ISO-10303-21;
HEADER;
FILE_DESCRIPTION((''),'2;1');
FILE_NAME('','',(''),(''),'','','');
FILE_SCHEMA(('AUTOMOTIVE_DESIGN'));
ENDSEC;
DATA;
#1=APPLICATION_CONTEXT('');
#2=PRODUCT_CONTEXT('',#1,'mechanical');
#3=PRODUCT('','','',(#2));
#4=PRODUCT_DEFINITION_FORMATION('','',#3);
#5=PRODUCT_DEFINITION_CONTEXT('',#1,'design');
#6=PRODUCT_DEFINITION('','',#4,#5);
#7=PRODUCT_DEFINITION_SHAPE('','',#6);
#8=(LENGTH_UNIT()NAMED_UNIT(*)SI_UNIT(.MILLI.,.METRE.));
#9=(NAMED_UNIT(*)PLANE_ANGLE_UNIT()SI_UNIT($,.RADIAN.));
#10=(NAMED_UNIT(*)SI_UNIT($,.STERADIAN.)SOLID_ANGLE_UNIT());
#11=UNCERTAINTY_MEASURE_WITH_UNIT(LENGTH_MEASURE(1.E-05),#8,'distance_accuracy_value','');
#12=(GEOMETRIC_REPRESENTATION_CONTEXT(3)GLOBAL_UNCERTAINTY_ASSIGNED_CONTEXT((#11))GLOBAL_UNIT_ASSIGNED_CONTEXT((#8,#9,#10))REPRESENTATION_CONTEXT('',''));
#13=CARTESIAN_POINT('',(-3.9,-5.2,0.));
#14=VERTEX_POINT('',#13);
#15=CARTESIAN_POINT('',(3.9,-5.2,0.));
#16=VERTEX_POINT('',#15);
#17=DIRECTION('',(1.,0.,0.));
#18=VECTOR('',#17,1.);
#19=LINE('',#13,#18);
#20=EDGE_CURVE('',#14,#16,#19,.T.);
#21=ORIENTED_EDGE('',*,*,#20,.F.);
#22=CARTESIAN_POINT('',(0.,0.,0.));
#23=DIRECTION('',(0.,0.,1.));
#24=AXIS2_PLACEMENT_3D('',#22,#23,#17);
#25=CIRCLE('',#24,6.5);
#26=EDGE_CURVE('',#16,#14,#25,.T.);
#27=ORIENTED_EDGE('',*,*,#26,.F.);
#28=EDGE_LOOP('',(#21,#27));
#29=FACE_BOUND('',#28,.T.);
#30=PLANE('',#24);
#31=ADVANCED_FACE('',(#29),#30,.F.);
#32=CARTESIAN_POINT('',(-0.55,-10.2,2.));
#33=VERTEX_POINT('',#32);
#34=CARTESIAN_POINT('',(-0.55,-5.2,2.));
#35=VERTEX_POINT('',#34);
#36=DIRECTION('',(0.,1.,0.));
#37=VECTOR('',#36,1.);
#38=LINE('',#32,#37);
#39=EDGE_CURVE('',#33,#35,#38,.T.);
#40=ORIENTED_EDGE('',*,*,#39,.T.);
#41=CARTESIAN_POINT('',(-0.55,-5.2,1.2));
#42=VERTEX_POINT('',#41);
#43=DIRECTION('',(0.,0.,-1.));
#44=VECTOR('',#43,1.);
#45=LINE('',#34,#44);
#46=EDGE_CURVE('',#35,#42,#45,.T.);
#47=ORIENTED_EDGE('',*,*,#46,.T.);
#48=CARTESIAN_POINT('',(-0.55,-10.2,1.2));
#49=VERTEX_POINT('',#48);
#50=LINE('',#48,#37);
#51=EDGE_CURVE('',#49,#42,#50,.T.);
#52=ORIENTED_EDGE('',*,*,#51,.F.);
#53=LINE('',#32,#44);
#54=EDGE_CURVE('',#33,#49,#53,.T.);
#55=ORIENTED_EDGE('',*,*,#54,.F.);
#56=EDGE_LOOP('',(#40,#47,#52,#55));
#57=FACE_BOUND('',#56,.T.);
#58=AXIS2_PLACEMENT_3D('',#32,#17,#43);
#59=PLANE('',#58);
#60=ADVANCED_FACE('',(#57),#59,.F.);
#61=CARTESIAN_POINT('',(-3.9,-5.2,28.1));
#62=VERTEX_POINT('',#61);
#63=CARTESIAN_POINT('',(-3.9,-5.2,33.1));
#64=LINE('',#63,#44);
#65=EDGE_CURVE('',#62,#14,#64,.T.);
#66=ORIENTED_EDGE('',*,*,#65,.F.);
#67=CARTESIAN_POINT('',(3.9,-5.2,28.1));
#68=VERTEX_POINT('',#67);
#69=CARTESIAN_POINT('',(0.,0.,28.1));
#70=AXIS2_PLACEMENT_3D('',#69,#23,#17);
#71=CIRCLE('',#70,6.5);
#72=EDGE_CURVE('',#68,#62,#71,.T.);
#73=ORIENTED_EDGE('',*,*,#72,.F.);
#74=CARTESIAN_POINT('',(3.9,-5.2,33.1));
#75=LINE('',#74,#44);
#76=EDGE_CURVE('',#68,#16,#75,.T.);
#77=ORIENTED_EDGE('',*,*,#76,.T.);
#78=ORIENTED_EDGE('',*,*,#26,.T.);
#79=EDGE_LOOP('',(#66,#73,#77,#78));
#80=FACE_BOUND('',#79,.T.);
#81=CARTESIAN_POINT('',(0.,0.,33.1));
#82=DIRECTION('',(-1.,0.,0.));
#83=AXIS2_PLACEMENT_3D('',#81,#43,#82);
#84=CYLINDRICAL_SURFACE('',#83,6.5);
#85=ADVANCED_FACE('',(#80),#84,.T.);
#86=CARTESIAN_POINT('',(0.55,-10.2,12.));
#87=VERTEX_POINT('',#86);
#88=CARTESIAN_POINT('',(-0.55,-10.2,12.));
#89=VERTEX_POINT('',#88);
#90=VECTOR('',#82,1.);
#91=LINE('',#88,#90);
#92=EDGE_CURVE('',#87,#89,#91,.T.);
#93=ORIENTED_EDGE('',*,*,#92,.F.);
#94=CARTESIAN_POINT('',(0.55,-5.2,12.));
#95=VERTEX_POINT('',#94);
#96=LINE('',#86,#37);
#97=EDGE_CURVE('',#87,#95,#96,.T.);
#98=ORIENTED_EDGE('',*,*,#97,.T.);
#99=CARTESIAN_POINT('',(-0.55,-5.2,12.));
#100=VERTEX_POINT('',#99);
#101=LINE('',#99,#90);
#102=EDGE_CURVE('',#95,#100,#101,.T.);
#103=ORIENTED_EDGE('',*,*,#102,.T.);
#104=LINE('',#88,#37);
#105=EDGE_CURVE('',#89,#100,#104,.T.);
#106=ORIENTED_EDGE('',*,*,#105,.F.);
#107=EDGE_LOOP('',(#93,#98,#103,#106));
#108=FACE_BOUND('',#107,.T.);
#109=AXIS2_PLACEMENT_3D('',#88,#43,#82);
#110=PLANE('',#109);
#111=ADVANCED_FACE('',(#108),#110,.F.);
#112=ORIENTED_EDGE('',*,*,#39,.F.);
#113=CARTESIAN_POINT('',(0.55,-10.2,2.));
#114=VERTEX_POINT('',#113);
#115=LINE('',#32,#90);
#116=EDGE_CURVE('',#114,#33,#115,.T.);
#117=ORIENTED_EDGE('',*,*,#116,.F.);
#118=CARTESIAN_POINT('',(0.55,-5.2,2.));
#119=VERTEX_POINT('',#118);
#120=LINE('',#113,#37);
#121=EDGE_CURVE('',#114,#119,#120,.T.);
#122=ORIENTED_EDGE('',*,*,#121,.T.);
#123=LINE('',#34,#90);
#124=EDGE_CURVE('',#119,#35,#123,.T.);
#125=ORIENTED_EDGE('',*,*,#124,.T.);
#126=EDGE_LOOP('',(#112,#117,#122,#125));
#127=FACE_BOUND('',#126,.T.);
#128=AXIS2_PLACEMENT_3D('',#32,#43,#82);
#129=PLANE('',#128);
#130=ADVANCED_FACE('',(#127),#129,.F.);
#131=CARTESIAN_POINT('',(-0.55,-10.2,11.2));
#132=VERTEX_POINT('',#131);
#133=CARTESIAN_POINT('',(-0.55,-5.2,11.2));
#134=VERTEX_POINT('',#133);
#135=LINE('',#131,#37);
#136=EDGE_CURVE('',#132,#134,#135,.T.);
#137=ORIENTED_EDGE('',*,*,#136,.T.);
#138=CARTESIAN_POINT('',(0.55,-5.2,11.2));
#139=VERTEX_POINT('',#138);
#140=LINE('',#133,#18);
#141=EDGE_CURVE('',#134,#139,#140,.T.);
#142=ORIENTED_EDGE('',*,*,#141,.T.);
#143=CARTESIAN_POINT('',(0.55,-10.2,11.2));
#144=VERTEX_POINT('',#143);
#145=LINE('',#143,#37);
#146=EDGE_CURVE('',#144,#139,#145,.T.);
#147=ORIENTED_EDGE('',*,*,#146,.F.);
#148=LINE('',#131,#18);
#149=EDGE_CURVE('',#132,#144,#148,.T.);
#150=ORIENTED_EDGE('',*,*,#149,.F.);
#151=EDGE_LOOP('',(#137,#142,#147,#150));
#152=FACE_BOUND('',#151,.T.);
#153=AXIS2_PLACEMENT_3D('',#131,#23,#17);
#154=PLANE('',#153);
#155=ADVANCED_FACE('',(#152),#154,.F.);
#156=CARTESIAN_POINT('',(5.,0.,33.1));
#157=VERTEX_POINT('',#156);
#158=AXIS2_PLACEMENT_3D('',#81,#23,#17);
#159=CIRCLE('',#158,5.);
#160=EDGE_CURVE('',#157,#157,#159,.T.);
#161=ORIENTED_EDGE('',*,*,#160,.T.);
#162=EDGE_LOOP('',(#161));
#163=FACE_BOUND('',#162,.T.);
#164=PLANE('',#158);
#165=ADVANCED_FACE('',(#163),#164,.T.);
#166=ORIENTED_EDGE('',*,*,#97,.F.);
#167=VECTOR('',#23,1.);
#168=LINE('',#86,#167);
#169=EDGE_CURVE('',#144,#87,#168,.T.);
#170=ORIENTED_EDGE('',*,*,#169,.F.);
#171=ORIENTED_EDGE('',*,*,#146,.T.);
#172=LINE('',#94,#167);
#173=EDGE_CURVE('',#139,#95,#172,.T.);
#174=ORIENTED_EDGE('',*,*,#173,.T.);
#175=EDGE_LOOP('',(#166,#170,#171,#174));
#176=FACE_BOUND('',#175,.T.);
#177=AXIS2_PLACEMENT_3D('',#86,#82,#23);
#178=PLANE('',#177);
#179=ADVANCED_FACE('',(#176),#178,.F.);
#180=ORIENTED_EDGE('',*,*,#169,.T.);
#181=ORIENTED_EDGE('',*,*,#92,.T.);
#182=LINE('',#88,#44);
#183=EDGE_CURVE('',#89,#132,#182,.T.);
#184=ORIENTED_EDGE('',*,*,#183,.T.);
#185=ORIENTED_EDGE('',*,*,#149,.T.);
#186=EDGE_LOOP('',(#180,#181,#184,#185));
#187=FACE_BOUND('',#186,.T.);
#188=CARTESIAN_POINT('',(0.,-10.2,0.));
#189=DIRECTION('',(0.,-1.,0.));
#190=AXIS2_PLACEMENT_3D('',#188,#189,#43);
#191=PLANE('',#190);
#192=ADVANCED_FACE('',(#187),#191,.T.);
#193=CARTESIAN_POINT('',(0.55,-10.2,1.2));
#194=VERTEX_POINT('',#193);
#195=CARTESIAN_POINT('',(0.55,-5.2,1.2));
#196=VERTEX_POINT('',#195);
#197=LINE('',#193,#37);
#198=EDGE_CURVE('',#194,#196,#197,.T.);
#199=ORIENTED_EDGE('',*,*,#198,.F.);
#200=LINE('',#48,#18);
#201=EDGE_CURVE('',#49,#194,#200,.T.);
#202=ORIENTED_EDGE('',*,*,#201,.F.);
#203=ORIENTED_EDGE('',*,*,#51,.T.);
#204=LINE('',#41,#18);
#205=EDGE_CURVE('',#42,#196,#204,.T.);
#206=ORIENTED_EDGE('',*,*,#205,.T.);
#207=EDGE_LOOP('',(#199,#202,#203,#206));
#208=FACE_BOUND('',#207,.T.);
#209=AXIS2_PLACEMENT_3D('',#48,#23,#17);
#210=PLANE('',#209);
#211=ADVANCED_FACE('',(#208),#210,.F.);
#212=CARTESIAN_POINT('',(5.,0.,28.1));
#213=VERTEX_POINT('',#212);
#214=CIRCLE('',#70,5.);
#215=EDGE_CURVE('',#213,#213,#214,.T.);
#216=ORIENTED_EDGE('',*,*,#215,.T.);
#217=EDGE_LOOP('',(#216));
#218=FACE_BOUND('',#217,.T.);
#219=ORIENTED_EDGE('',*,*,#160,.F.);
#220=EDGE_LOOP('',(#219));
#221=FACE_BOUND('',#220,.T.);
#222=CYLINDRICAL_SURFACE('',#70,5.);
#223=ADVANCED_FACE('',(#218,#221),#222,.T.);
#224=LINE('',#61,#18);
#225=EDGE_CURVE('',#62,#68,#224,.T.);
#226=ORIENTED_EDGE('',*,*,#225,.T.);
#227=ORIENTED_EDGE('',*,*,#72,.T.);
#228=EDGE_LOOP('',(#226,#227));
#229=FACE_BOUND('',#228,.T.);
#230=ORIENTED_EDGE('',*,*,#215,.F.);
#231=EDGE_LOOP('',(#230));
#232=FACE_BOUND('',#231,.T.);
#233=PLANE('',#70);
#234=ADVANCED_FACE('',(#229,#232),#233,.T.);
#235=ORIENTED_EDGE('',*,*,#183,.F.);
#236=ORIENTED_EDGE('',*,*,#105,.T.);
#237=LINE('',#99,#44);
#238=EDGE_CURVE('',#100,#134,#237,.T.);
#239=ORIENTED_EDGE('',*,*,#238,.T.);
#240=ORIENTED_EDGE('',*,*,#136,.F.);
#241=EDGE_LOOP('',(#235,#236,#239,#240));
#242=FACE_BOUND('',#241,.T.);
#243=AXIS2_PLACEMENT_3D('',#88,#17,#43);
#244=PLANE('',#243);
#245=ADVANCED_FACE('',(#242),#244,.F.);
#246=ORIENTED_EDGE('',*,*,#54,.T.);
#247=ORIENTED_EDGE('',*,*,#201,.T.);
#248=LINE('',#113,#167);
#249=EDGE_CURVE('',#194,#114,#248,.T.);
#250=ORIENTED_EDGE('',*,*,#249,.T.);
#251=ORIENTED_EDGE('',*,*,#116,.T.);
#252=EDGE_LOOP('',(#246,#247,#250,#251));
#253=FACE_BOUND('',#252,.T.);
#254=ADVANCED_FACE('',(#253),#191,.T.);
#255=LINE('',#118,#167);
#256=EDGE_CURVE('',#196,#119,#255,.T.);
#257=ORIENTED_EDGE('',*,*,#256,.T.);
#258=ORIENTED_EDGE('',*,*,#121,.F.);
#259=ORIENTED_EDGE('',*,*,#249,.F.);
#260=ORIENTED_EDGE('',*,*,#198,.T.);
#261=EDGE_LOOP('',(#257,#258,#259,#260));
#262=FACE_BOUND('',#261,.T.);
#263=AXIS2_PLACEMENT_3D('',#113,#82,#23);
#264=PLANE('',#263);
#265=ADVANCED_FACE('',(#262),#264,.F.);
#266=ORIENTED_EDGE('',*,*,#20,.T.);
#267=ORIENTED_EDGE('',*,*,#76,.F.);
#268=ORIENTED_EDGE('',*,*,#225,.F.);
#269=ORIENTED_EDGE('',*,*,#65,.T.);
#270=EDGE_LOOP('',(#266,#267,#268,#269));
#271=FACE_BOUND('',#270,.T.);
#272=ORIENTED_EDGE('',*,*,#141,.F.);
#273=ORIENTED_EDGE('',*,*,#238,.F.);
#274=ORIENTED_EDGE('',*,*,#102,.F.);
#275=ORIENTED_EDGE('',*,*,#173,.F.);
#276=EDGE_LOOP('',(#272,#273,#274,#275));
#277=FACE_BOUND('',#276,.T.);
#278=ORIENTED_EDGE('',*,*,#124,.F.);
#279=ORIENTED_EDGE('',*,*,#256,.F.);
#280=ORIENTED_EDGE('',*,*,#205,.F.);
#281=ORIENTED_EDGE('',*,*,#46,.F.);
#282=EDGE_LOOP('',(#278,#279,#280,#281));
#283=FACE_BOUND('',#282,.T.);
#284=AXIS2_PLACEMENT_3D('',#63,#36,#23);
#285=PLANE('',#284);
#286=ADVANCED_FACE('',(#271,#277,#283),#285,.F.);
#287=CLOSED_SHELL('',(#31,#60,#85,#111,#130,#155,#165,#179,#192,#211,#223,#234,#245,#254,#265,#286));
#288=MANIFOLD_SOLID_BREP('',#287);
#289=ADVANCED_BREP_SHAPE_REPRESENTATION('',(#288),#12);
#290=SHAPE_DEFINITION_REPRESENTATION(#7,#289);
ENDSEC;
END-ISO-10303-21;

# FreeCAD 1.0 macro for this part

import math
import FreeCAD as App
import Part
import Sketcher

V = App.Vector
Q = App.Units.Quantity

doc = App.newDocument("Part")
body = doc.addObject("PartDesign::Body", "Body")

sketch1 = doc.addObject("Sketcher::SketchObject", "Sketch")
body.addObject(sketch1)
sketch1.AttachmentSupport = (doc.XY_Plane, [""])
sketch1.MapMode = "FlatFace"
sketch1.addGeometry(Part.LineSegment(V(-4, -5, 0), V(4, -5, 0)), False)
sketch1.addGeometry(Part.ArcOfCircle(Part.Circle(V(0, 0, 0), V(0, 0, 1), 6), math.radians(-53), math.radians(233)), False)
sketch1.addConstraint(Sketcher.Constraint("Coincident", 0, 1, 1, 2))
sketch1.addConstraint(Sketcher.Constraint("Coincident", 1, 1, 0, 2))
sketch1.addConstraint(Sketcher.Constraint("Horizontal", 0))
sketch1.addConstraint(Sketcher.Constraint("Coincident", 1, 3, -1, 1))
sketch1.addConstraint(Sketcher.Constraint("Radius", 1, Q("6.5 mm")))
sketch1.addConstraint(Sketcher.Constraint("DistanceX", 0, 1, 0, 2, Q("7.8 mm")))
pad1 = doc.addObject("PartDesign::Pad", "Pad")
body.addObject(pad1)
pad1.Profile = sketch1
pad1.Length = 33.1

sketch2 = doc.addObject("Sketcher::SketchObject", "Sketch001")
body.addObject(sketch2)
sketch2.AttachmentSupport = (doc.XY_Plane, [""])
sketch2.MapMode = "FlatFace"
sketch2.AttachmentOffset = App.Placement(V(0, 0, 28.1), App.Rotation())
sketch2.addGeometry(Part.LineSegment(V(-4, -5, 0), V(4, -5, 0)), False)
sketch2.addGeometry(Part.ArcOfCircle(Part.Circle(V(0, 0, 0), V(0, 0, 1), 6), math.radians(-53), math.radians(233)), False)
sketch2.addGeometry(Part.Circle(V(0, 0, 0), V(0, 0, 1), 5), False)
sketch2.addConstraint(Sketcher.Constraint("Coincident", 0, 1, 1, 2))
sketch2.addConstraint(Sketcher.Constraint("Coincident", 1, 1, 0, 2))
sketch2.addConstraint(Sketcher.Constraint("Horizontal", 0))
sketch2.addConstraint(Sketcher.Constraint("Coincident", 1, 3, -1, 1))
sketch2.addConstraint(Sketcher.Constraint("Coincident", 2, 3, -1, 1))
sketch2.addConstraint(Sketcher.Constraint("Diameter", 2, Q("10 mm")))
sketch2.addConstraint(Sketcher.Constraint("Radius", 1, Q("6.5 mm")))
sketch2.addConstraint(Sketcher.Constraint("DistanceX", 0, 1, 0, 2, Q("7.8 mm")))
pocket1 = doc.addObject("PartDesign::Pocket", "Pocket")
body.addObject(pocket1)
pocket1.Profile = sketch2
pocket1.Length = 5
pocket1.Reversed = True

sketch3 = doc.addObject("Sketcher::SketchObject", "Sketch002")
body.addObject(sketch3)
sketch3.AttachmentSupport = (doc.XZ_Plane, [""])
sketch3.MapMode = "FlatFace"
sketch3.AttachmentOffset = App.Placement(V(0, 0, 5.2), App.Rotation())
sketch3.addGeometry(Part.LineSegment(V(-0.6, 12, 0), V(-0.6, 11.2, 0)), False)
sketch3.addGeometry(Part.LineSegment(V(-0.6, 11.2, 0), V(0.6, 11.2, 0)), False)
sketch3.addGeometry(Part.LineSegment(V(0.6, 11.2, 0), V(0.6, 12, 0)), False)
sketch3.addGeometry(Part.LineSegment(V(0.6, 12, 0), V(-0.6, 12, 0)), False)
sketch3.addGeometry(Part.LineSegment(V(-0.6, 2, 0), V(-0.6, 1.2, 0)), False)
sketch3.addGeometry(Part.LineSegment(V(-0.6, 1.2, 0), V(0.6, 1.2, 0)), False)
sketch3.addGeometry(Part.LineSegment(V(0.6, 1.2, 0), V(0.6, 2, 0)), False)
sketch3.addGeometry(Part.LineSegment(V(0.6, 2, 0), V(-0.6, 2, 0)), False)
sketch3.addConstraint(Sketcher.Constraint("Coincident", 0, 2, 1, 1))
sketch3.addConstraint(Sketcher.Constraint("Coincident", 1, 2, 2, 1))
sketch3.addConstraint(Sketcher.Constraint("Coincident", 2, 2, 3, 1))
sketch3.addConstraint(Sketcher.Constraint("Coincident", 3, 2, 0, 1))
sketch3.addConstraint(Sketcher.Constraint("Coincident", 4, 2, 5, 1))
sketch3.addConstraint(Sketcher.Constraint("Coincident", 5, 2, 6, 1))
sketch3.addConstraint(Sketcher.Constraint("Coincident", 6, 2, 7, 1))
sketch3.addConstraint(Sketcher.Constraint("Coincident", 7, 2, 4, 1))
sketch3.addConstraint(Sketcher.Constraint("Vertical", 0))
sketch3.addConstraint(Sketcher.Constraint("Horizontal", 1))
sketch3.addConstraint(Sketcher.Constraint("Vertical", 2))
sketch3.addConstraint(Sketcher.Constraint("Horizontal", 3))
sketch3.addConstraint(Sketcher.Constraint("Vertical", 4))
sketch3.addConstraint(Sketcher.Constraint("Horizontal", 5))
sketch3.addConstraint(Sketcher.Constraint("Vertical", 6))
sketch3.addConstraint(Sketcher.Constraint("Horizontal", 7))
sketch3.addConstraint(Sketcher.Constraint("Vertical", 3, 2, 4, 2))
sketch3.addConstraint(Sketcher.Constraint("Vertical", 2, 2, 5, 2))
sketch3.addConstraint(Sketcher.Constraint("Equal", 2, 4))
sketch3.addConstraint(Sketcher.Constraint("DistanceX", 1, 1, 1, 2, Q("1.1 mm")))
sketch3.addConstraint(Sketcher.Constraint("DistanceY", 0, 2, 0, 1, Q("0.8 mm")))
sketch3.addConstraint(Sketcher.Constraint("DistanceY", -1, 1, 2, 2, Q("12 mm")))
sketch3.addConstraint(Sketcher.Constraint("DistanceY", -1, 1, 6, 2, Q("2 mm")))
sketch3.addConstraint(Sketcher.Constraint("DistanceX", 0, 2, -1, 1, Q("0.55 mm")))
pad2 = doc.addObject("PartDesign::Pad", "Pad001")
body.addObject(pad2)
pad2.Profile = sketch3
pad2.Length = 5

doc.recompute()
